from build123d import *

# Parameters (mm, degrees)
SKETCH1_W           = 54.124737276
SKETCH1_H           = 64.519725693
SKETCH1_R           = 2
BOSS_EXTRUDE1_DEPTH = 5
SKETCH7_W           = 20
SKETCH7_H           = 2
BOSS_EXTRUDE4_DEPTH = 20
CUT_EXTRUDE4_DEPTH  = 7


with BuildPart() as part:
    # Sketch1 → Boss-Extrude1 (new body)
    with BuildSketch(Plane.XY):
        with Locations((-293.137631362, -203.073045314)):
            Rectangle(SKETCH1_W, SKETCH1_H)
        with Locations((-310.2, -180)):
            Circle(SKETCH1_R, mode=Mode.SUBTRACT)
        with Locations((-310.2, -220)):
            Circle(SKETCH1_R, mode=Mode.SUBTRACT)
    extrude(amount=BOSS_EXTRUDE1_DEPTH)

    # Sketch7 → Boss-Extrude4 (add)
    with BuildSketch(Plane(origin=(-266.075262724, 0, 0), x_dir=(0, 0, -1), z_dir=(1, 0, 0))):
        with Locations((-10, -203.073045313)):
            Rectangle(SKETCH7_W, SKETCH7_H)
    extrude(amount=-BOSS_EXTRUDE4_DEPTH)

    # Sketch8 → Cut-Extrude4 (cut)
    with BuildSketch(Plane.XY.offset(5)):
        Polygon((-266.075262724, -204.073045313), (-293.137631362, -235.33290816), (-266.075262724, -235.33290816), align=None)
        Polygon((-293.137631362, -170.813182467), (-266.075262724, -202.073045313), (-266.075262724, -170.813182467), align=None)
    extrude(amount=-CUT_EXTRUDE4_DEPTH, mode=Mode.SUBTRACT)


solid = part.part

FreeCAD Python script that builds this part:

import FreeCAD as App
import Part
import Sketcher

V = App.Vector

doc = App.newDocument("Part")
body = doc.addObject("PartDesign::Body", "Body")

sketch1 = body.newObject("Sketcher::SketchObject", "Sketch")
sketch1.AttachmentSupport = (doc.getObject("XY_Plane"), [""])
sketch1.MapMode = "FlatFace"
sketch1.addGeometry([
    Part.LineSegment(V(-320.2, -170.8, 0), V(-320.2, -235.3, 0)),
    Part.LineSegment(V(-320.2, -235.3, 0), V(-266.1, -235.3, 0)),
    Part.LineSegment(V(-266.1, -235.3, 0), V(-266.1, -170.8, 0)),
    Part.LineSegment(V(-266.1, -170.8, 0), V(-320.2, -170.8, 0)),
    Part.Circle(V(-310.2, -220, 0), V(0, 0, 1), 2),
    Part.Circle(V(-310.2, -180, 0), V(0, 0, 1), 2),
], False)
sketch1.addConstraint([
    Sketcher.Constraint("Coincident", 0, 2, 1, 1),
    Sketcher.Constraint("Coincident", 1, 2, 2, 1),
    Sketcher.Constraint("Coincident", 2, 2, 3, 1),
    Sketcher.Constraint("Coincident", 3, 2, 0, 1),
    Sketcher.Constraint("Vertical", 0),
    Sketcher.Constraint("Horizontal", 1),
    Sketcher.Constraint("Vertical", 2),
    Sketcher.Constraint("Horizontal", 3),
    Sketcher.Constraint("Equal", 4, 5),
    Sketcher.Constraint("Vertical", 4, 3, 5, 3),
    Sketcher.Constraint("Diameter", 4, 4.0),
    Sketcher.Constraint("DistanceY", 4, 3, -1, 1, 220.0),
    Sketcher.Constraint("DistanceY", 5, 3, -1, 1, 180.0),
    Sketcher.Constraint("DistanceX", 0, 2, 4, 3, 10.0),
    Sketcher.Constraint("DistanceX", 4, 3, -1, 1, 310.2),
    Sketcher.Constraint("DistanceX", 1, 1, 1, 2, 54.124737),
    Sketcher.Constraint("DistanceY", 0, 2, 0, 1, 64.519726),
    Sketcher.Constraint("DistanceY", 0, 2, -1, 1, 235.332908),
])
pad1 = body.newObject("PartDesign::Pad", "Pad")
pad1.Profile = sketch1
pad1.Length = 5

sketch2 = body.newObject("Sketcher::SketchObject", "Sketch001")
sketch2.AttachmentSupport = (doc.getObject("YZ_Plane"), [""])
sketch2.MapMode = "FlatFace"
sketch2.AttachmentOffset = App.Placement(V(0, 0, -266.075263), App.Rotation())
sketch2.addGeometry([
    Part.LineSegment(V(-202.1, 20, 0), V(-204.1, 20, 0)),
    Part.LineSegment(V(-204.1, 20, 0), V(-204.1, 0, 0)),
    Part.LineSegment(V(-204.1, 0, 0), V(-202.1, 0, 0)),
    Part.LineSegment(V(-202.1, 0, 0), V(-202.1, 20, 0)),
], False)
sketch2.addConstraint([
    Sketcher.Constraint("Coincident", 0, 2, 1, 1),
    Sketcher.Constraint("Coincident", 1, 2, 2, 1),
    Sketcher.Constraint("Coincident", 2, 2, 3, 1),
    Sketcher.Constraint("Coincident", 3, 2, 0, 1),
    Sketcher.Constraint("Horizontal", 0),
    Sketcher.Constraint("Vertical", 1),
    Sketcher.Constraint("Horizontal", 2),
    Sketcher.Constraint("Vertical", 3),
    Sketcher.Constraint("PointOnObject", 1, 2, -1),
    Sketcher.Constraint("DistanceX", 0, 2, 0, 1, 2.0),
    Sketcher.Constraint("DistanceY", 1, 2, 1, 1, 20.0),
    Sketcher.Constraint("DistanceX", 0, 2, -1, 1, 204.073045),
])
pad2 = body.newObject("PartDesign::Pad", "Pad001")
pad2.Profile = sketch2
pad2.Length = 20
pad2.Reversed = True

sketch3 = body.newObject("Sketcher::SketchObject", "Sketch002")
sketch3.AttachmentSupport = (doc.getObject("XY_Plane"), [""])
sketch3.MapMode = "FlatFace"
sketch3.AttachmentOffset = App.Placement(V(0, 0, 5), App.Rotation())
sketch3.addGeometry([
    Part.LineSegment(V(-266, -204, 0), V(-293, -235, 0)),
    Part.LineSegment(V(-293, -235, 0), V(-266, -235, 0)),
    Part.LineSegment(V(-266, -235, 0), V(-266, -204, 0)),
    Part.LineSegment(V(-293, -171, 0), V(-266, -202, 0)),
    Part.LineSegment(V(-266, -202, 0), V(-266, -171, 0)),
    Part.LineSegment(V(-266, -171, 0), V(-293, -171, 0)),
], False)
sketch3.addConstraint([
    Sketcher.Constraint("Coincident", 0, 2, 1, 1),
    Sketcher.Constraint("Coincident", 1, 2, 2, 1),
    Sketcher.Constraint("Coincident", 2, 2, 0, 1),
    Sketcher.Constraint("Coincident", 3, 2, 4, 1),
    Sketcher.Constraint("Coincident", 4, 2, 5, 1),
    Sketcher.Constraint("Coincident", 5, 2, 3, 1),
    Sketcher.Constraint("Horizontal", 1),
    Sketcher.Constraint("Vertical", 2),
    Sketcher.Constraint("Vertical", 4),
    Sketcher.Constraint("Horizontal", 5),
    Sketcher.Constraint("Vertical", 2, 2, 3, 2),
    Sketcher.Constraint("Vertical", 0, 2, 5, 2),
    Sketcher.Constraint("Equal", 2, 4),
    Sketcher.Constraint("DistanceY", 2, 2, 3, 2, 2.0),
    Sketcher.Constraint("DistanceX", 1, 1, 1, 2, 27.062369),
    Sketcher.Constraint("DistanceY", 2, 1, 2, 2, 31.259863),
    Sketcher.Constraint("DistanceX", 0, 2, -1, 1, 293.137631),
    Sketcher.Constraint("DistanceY", 0, 2, -1, 1, 235.332908),
])
pocket1 = body.newObject("PartDesign::Pocket", "Pocket")
pocket1.Profile = sketch3
pocket1.Length = 7

doc.recompute()
